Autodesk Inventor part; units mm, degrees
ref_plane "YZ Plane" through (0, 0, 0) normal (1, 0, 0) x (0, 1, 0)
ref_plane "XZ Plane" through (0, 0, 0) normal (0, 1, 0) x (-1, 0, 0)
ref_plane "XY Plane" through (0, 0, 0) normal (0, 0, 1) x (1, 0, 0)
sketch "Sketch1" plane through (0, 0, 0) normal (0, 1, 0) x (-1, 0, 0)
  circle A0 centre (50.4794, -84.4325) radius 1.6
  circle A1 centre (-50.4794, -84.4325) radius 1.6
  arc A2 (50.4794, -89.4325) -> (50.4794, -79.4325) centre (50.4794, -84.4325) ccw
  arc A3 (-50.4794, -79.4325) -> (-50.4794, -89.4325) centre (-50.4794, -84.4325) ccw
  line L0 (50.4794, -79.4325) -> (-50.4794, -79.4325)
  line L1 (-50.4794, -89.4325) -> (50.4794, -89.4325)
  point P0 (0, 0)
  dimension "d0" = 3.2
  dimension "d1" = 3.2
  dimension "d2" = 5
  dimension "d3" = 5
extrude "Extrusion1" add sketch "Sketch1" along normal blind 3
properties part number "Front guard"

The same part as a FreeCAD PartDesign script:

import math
import FreeCAD as App
import Part
import Sketcher
from FreeCAD import Vector
Q = App.Units.Quantity

doc = App.newDocument("Part")
params = doc.addObject("Spreadsheet::Sheet", "Params")
for row, (alias, value) in enumerate([
    ("sketch1_radius", "5 mm"),
    ("sketch1_diameter", "3.2 mm"),
    ("pad1_length", "3 mm"),
], start=1):
    params.set(f"A{row}", alias)
    params.set(f"B{row}", "=" + value)
    params.setAlias(f"B{row}", alias)

body = doc.addObject("PartDesign::Body", "Body")

sketch1 = doc.addObject("Sketcher::SketchObject", "Sketch")
body.addObject(sketch1)
sketch1.AttachmentSupport = (doc.XZ_Plane, [""])
sketch1.MapMode = "FlatFace"
sketch1.addGeometry([
    Part.LineSegment(Vector(50.5, -89.4, 0), Vector(-50.5, -89.4, 0)),
    Part.ArcOfCircle(Part.Circle(Vector(-50.5, -84.4, 0), Vector(0, 0, 1), 5), math.radians(90), math.radians(270)),
    Part.LineSegment(Vector(-50.5, -79.4, 0), Vector(50.5, -79.4, 0)),
    Part.ArcOfCircle(Part.Circle(Vector(50.5, -84.4, 0), Vector(0, 0, 1), 5), math.radians(-90), math.radians(90)),
    Part.Circle(Vector(50.5, -84.4, 0), Vector(0, 0, 1), 1.6),
    Part.Circle(Vector(-50.5, -84.4, 0), Vector(0, 0, 1), 1.6),
], False)
sketch1.addConstraint([
    Sketcher.Constraint("Tangent", 0, 2, 1, 2),
    Sketcher.Constraint("Tangent", 1, 1, 2, 1),
    Sketcher.Constraint("Tangent", 2, 2, 3, 2),
    Sketcher.Constraint("Tangent", 3, 1, 0, 1),
    Sketcher.Constraint("Horizontal", 0),
    Sketcher.Constraint("Horizontal", 2),
    Sketcher.Constraint("Coincident", 4, 3, 3, 3),
    Sketcher.Constraint("Coincident", 5, 3, 1, 3),
    Sketcher.Constraint("Equal", 4, 5),
    Sketcher.Constraint("Radius", 1, Q("5 mm")),
    Sketcher.Constraint("Diameter", 4, Q("3.2 mm")),
    Sketcher.Constraint("DistanceX", 0, 2, 0, 1, Q("100.9588 mm")),
    Sketcher.Constraint("DistanceX", 1, 3, -1, 1, Q("50.4794 mm")),
    Sketcher.Constraint("DistanceY", 1, 3, -1, 1, Q("84.4325 mm")),
])
sketch1.setExpression("Constraints[9]", "Params.sketch1_radius")
sketch1.setExpression("Constraints[10]", "Params.sketch1_diameter")
pad1 = doc.addObject("PartDesign::Pad", "Pad")
body.addObject(pad1)
pad1.Profile = sketch1
pad1.setExpression("Length", "Params.pad1_length")
pad1.Reversed = True

doc.recompute()
